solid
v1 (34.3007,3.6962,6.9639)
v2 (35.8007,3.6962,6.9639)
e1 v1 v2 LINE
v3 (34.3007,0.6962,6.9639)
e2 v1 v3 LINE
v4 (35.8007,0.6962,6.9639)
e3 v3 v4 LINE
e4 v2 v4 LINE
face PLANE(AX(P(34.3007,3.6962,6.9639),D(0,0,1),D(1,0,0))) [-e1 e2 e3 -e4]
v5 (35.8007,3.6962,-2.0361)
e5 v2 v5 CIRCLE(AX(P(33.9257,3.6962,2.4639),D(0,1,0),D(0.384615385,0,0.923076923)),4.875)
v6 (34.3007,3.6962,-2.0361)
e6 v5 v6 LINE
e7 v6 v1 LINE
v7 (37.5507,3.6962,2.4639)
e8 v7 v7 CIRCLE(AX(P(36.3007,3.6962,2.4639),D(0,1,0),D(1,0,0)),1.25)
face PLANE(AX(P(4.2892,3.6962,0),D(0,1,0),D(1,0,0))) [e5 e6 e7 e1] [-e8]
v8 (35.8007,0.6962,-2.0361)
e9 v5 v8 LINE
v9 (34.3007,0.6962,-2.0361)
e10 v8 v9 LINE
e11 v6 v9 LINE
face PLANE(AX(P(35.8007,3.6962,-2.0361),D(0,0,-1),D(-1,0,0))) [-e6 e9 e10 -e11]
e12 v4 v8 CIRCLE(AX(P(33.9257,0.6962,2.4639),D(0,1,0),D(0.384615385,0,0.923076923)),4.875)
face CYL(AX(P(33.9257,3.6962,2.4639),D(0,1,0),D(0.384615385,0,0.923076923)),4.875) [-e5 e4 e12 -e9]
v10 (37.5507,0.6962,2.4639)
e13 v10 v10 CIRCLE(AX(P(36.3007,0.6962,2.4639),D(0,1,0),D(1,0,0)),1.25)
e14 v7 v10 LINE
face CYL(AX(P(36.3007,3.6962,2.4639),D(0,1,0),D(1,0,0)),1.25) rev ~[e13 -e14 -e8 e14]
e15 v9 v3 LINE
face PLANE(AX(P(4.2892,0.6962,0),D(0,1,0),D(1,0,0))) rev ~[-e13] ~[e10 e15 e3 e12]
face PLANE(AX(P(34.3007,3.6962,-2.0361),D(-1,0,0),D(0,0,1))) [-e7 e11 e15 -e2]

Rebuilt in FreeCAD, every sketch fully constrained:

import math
import FreeCAD as App
import Part
import Sketcher

doc = App.newDocument("Part")
body = doc.addObject("PartDesign::Body", "Body")

sketch1 = body.newObject("Sketcher::SketchObject", "Sketch")
sketch1.AttachmentSupport = (doc.getObject("XZ_Plane"), [""])
sketch1.MapMode = "FlatFace"
sketch1.AttachmentOffset = App.Placement(App.Vector(0, 0, -3.6962), App.Rotation())
sketch1.addGeometry(Part.LineSegment(App.Vector(35.8, -2, 0), App.Vector(34.3, -2, 0)), False)
sketch1.addGeometry(Part.LineSegment(App.Vector(34.3, -2, 0), App.Vector(34.3, 7, 0)), False)
sketch1.addGeometry(Part.LineSegment(App.Vector(34.3, 7, 0), App.Vector(35.8, 7, 0)), False)
sketch1.addGeometry(Part.ArcOfCircle(Part.Circle(App.Vector(33.9, 2.5, 0), App.Vector(0, 0, 1), 4.9), math.radians(-67), math.radians(67)), False)
sketch1.addGeometry(Part.Circle(App.Vector(36.3, 2.5, 0), App.Vector(0, 0, 1), 1.2), False)
sketch1.addConstraint(Sketcher.Constraint("Coincident", 0, 2, 1, 1))
sketch1.addConstraint(Sketcher.Constraint("Coincident", 1, 2, 2, 1))
sketch1.addConstraint(Sketcher.Constraint("Coincident", 2, 2, 3, 2))
sketch1.addConstraint(Sketcher.Constraint("Coincident", 3, 1, 0, 1))
sketch1.addConstraint(Sketcher.Constraint("Horizontal", 0))
sketch1.addConstraint(Sketcher.Constraint("Vertical", 1))
sketch1.addConstraint(Sketcher.Constraint("Horizontal", 2))
sketch1.addConstraint(Sketcher.Constraint("Horizontal", 3, 3, 4, 3))
sketch1.addConstraint(Sketcher.Constraint("Vertical", 2, 2, 3, 1))
sketch1.addConstraint(Sketcher.Constraint("Diameter", 4, 2.5))
sketch1.addConstraint(Sketcher.Constraint("DistanceY", 1, 1, 1, 2, 9.0))
sketch1.addConstraint(Sketcher.Constraint("DistanceX", 0, 2, 0, 1, 1.5))
sketch1.addConstraint(Sketcher.Constraint("DistanceX", 2, 2, 4, 3, 0.5))
sketch1.addConstraint(Sketcher.Constraint("Radius", 3, 4.875))
sketch1.addConstraint(Sketcher.Constraint("DistanceY", -1, 1, 3, 3, 2.464))
sketch1.addConstraint(Sketcher.Constraint("DistanceX", -1, 1, 3, 3, 33.9257))
pad1 = body.newObject("PartDesign::Pad", "Pad")
pad1.Profile = sketch1
pad1.Length = 3

doc.recompute()
